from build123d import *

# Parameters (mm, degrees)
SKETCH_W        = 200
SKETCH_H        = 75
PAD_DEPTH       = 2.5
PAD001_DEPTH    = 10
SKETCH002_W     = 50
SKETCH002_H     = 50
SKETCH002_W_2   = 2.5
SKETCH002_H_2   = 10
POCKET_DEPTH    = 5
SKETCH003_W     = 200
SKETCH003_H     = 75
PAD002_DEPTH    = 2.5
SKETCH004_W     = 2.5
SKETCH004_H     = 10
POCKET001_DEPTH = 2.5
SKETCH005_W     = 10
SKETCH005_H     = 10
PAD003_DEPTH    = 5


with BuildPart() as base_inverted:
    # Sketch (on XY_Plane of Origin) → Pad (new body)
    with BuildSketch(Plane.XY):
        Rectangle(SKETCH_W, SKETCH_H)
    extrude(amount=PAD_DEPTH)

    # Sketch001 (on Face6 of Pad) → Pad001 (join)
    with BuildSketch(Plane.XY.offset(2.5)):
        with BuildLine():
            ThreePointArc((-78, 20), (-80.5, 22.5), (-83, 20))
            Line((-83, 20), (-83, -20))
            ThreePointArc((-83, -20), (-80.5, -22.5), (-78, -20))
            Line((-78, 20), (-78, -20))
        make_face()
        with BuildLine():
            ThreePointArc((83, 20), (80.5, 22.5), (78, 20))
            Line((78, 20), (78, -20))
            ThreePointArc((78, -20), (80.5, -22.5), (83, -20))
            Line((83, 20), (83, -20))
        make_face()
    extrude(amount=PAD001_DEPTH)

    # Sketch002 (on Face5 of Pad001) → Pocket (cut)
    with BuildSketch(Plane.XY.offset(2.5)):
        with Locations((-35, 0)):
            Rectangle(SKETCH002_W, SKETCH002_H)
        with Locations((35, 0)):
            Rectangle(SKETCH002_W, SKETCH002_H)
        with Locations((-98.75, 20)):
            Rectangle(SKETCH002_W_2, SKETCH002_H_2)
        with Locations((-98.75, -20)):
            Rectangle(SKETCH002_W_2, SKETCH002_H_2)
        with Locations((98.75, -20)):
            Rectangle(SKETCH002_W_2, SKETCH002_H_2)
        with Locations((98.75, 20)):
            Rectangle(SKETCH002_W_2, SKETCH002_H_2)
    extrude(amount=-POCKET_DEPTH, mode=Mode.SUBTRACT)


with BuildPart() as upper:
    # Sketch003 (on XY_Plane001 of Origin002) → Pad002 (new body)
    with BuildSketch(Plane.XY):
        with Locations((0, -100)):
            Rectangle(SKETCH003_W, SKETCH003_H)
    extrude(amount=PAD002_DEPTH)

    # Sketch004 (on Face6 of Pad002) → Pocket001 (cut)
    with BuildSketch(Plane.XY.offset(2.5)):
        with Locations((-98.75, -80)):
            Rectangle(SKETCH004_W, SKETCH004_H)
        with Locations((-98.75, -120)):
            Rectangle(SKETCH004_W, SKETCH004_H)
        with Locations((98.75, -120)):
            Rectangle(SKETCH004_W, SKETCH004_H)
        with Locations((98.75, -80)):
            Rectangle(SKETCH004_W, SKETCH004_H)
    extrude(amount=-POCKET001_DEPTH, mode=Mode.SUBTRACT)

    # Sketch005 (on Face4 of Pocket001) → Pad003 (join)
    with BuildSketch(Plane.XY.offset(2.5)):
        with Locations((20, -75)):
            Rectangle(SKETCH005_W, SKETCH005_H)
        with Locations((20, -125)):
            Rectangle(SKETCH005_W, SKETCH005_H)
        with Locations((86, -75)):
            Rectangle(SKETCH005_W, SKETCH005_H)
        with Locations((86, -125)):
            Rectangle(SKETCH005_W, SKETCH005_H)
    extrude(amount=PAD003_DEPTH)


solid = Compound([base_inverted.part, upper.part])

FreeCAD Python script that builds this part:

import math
import FreeCAD as App
import Part
import Sketcher

doc = App.newDocument("Part")
body = doc.addObject("PartDesign::Body", "Body")

sketch1 = body.newObject("Sketcher::SketchObject", "Sketch")
sketch1.AttachmentSupport = (doc.getObject("XY_Plane"), [""])
sketch1.MapMode = "FlatFace"
sketch1.addGeometry([
    Part.LineSegment(App.Vector(-100, 38, 0), App.Vector(-100, -38, 0)),
    Part.LineSegment(App.Vector(-100, -38, 0), App.Vector(100, -38, 0)),
    Part.LineSegment(App.Vector(100, -38, 0), App.Vector(100, 38, 0)),
    Part.LineSegment(App.Vector(100, 38, 0), App.Vector(-100, 38, 0)),
], False)
sketch1.addConstraint([
    Sketcher.Constraint("Coincident", 0, 2, 1, 1),
    Sketcher.Constraint("Coincident", 1, 2, 2, 1),
    Sketcher.Constraint("Coincident", 2, 2, 3, 1),
    Sketcher.Constraint("Coincident", 3, 2, 0, 1),
    Sketcher.Constraint("Vertical", 0),
    Sketcher.Constraint("Horizontal", 1),
    Sketcher.Constraint("Vertical", 2),
    Sketcher.Constraint("Horizontal", 3),
    Sketcher.Constraint("Symmetric", 0, 2, 2, 2, -1, 1),
    Sketcher.Constraint("DistanceX", 1, 1, 1, 2, 200.0),
    Sketcher.Constraint("DistanceY", 0, 2, 0, 1, 75.0),
])
pad1 = body.newObject("PartDesign::Pad", "Pad")
pad1.Profile = sketch1
pad1.Length = 2.5

sketch2 = body.newObject("Sketcher::SketchObject", "Sketch001")
sketch2.AttachmentSupport = (doc.getObject("XY_Plane"), [""])
sketch2.MapMode = "FlatFace"
sketch2.AttachmentOffset = App.Placement(App.Vector(0, 0, 2.5), App.Rotation())
sketch2.addGeometry([
    Part.ArcOfCircle(Part.Circle(App.Vector(-80.5, 20, 0), App.Vector(0, 0, 1), 2.5), math.radians(0), math.radians(180)),
    Part.LineSegment(App.Vector(-83, 20, 0), App.Vector(-83, -20, 0)),
    Part.ArcOfCircle(Part.Circle(App.Vector(-80.5, -20, 0), App.Vector(0, 0, 1), 2.5), math.radians(180), math.radians(360)),
    Part.LineSegment(App.Vector(-78, -20, 0), App.Vector(-78, 20, 0)),
    Part.ArcOfCircle(Part.Circle(App.Vector(80.5, 20, 0), App.Vector(0, 0, 1), 2.5), math.radians(0), math.radians(180)),
    Part.LineSegment(App.Vector(78, 20, 0), App.Vector(78, -20, 0)),
    Part.ArcOfCircle(Part.Circle(App.Vector(80.5, -20, 0), App.Vector(0, 0, 1), 2.5), math.radians(180), math.radians(360)),
    Part.LineSegment(App.Vector(83, -20, 0), App.Vector(83, 20, 0)),
], False)
sketch2.addConstraint([
    Sketcher.Constraint("Tangent", 0, 2, 1, 1),
    Sketcher.Constraint("Tangent", 1, 2, 2, 1),
    Sketcher.Constraint("Tangent", 2, 2, 3, 1),
    Sketcher.Constraint("Tangent", 3, 2, 0, 1),
    Sketcher.Constraint("Tangent", 4, 2, 5, 1),
    Sketcher.Constraint("Tangent", 5, 2, 6, 1),
    Sketcher.Constraint("Tangent", 6, 2, 7, 1),
    Sketcher.Constraint("Tangent", 7, 2, 4, 1),
    Sketcher.Constraint("Vertical", 1),
    Sketcher.Constraint("Vertical", 3),
    Sketcher.Constraint("Vertical", 5),
    Sketcher.Constraint("Vertical", 7),
    Sketcher.Constraint("Equal", 2, 4),
    Sketcher.Constraint("Symmetric", 2, 3, 4, 3, -1, 1),
    Sketcher.Constraint("Horizontal", 0, 3, 4, 3),
    Sketcher.Constraint("Horizontal", 2, 3, 6, 3),
    Sketcher.Constraint("Radius", 0, 2.5),
    Sketcher.Constraint("DistanceY", 1, 2, 1, 1, 40.0),
    Sketcher.Constraint("DistanceX", 0, 2, -1, 1, 83.0),
])
pad2 = body.newObject("PartDesign::Pad", "Pad001")
pad2.Profile = sketch2
pad2.Length = 10

sketch3 = body.newObject("Sketcher::SketchObject", "Sketch002")
sketch3.AttachmentSupport = (doc.getObject("XY_Plane"), [""])
sketch3.MapMode = "FlatFace"
sketch3.AttachmentOffset = App.Placement(App.Vector(0, 0, 2.5), App.Rotation())
sketch3.addGeometry([
    Part.LineSegment(App.Vector(-60, 25, 0), App.Vector(-60, -25, 0)),
    Part.LineSegment(App.Vector(-60, -25, 0), App.Vector(-10, -25, 0)),
    Part.LineSegment(App.Vector(-10, -25, 0), App.Vector(-10, 25, 0)),
    Part.LineSegment(App.Vector(-10, 25, 0), App.Vector(-60, 25, 0)),
    Part.LineSegment(App.Vector(10, 25, 0), App.Vector(10, -25, 0)),
    Part.LineSegment(App.Vector(10, -25, 0), App.Vector(60, -25, 0)),
    Part.LineSegment(App.Vector(60, -25, 0), App.Vector(60, 25, 0)),
    Part.LineSegment(App.Vector(60, 25, 0), App.Vector(10, 25, 0)),
    Part.LineSegment(App.Vector(-100, 25, 0), App.Vector(-100, 15, 0)),
    Part.LineSegment(App.Vector(-100, 15, 0), App.Vector(-97.5, 15, 0)),
    Part.LineSegment(App.Vector(-97.5, 15, 0), App.Vector(-97.5, 25, 0)),
    Part.LineSegment(App.Vector(-97.5, 25, 0), App.Vector(-100, 25, 0)),
    Part.LineSegment(App.Vector(-100, -15, 0), App.Vector(-100, -25, 0)),
    Part.LineSegment(App.Vector(-100, -25, 0), App.Vector(-97.5, -25, 0)),
    Part.LineSegment(App.Vector(-97.5, -25, 0), App.Vector(-97.5, -15, 0)),
    Part.LineSegment(App.Vector(-97.5, -15, 0), App.Vector(-100, -15, 0)),
    Part.LineSegment(App.Vector(97.5, -15, 0), App.Vector(97.5, -25, 0)),
    Part.LineSegment(App.Vector(97.5, -25, 0), App.Vector(100, -25, 0)),
    Part.LineSegment(App.Vector(100, -25, 0), App.Vector(100, -15, 0)),
    Part.LineSegment(App.Vector(100, -15, 0), App.Vector(97.5, -15, 0)),
    Part.LineSegment(App.Vector(97.5, 25, 0), App.Vector(97.5, 15, 0)),
    Part.LineSegment(App.Vector(97.5, 15, 0), App.Vector(100, 15, 0)),
    Part.LineSegment(App.Vector(100, 15, 0), App.Vector(100, 25, 0)),
    Part.LineSegment(App.Vector(100, 25, 0), App.Vector(97.5, 25, 0)),
], False)
sketch3.addConstraint([
    Sketcher.Constraint("Coincident", 0, 2, 1, 1),
    Sketcher.Constraint("Coincident", 1, 2, 2, 1),
    Sketcher.Constraint("Coincident", 2, 2, 3, 1),
    Sketcher.Constraint("Coincident", 3, 2, 0, 1),
    Sketcher.Constraint("Coincident", 4, 2, 5, 1),
    Sketcher.Constraint("Coincident", 5, 2, 6, 1),
    Sketcher.Constraint("Coincident", 6, 2, 7, 1),
    Sketcher.Constraint("Coincident", 7, 2, 4, 1),
    Sketcher.Constraint("Coincident", 8, 2, 9, 1),
    Sketcher.Constraint("Coincident", 9, 2, 10, 1),
    Sketcher.Constraint("Coincident", 10, 2, 11, 1),
    Sketcher.Constraint("Coincident", 11, 2, 8, 1),
    Sketcher.Constraint("Coincident", 12, 2, 13, 1),
    Sketcher.Constraint("Coincident", 13, 2, 14, 1),
    Sketcher.Constraint("Coincident", 14, 2, 15, 1),
    Sketcher.Constraint("Coincident", 15, 2, 12, 1),
    Sketcher.Constraint("Coincident", 16, 2, 17, 1),
    Sketcher.Constraint("Coincident", 17, 2, 18, 1),
    Sketcher.Constraint("Coincident", 18, 2, 19, 1),
    Sketcher.Constraint("Coincident", 19, 2, 16, 1),
    Sketcher.Constraint("Coincident", 20, 2, 21, 1),
    Sketcher.Constraint("Coincident", 21, 2, 22, 1),
    Sketcher.Constraint("Coincident", 22, 2, 23, 1),
    Sketcher.Constraint("Coincident", 23, 2, 20, 1),
    Sketcher.Constraint("Vertical", 0),
    Sketcher.Constraint("Horizontal", 1),
    Sketcher.Constraint("Vertical", 2),
    Sketcher.Constraint("Horizontal", 3),
    Sketcher.Constraint("Vertical", 4),
    Sketcher.Constraint("Horizontal", 5),
    Sketcher.Constraint("Vertical", 6),
    Sketcher.Constraint("Horizontal", 7),
    Sketcher.Constraint("Vertical", 8),
    Sketcher.Constraint("Horizontal", 9),
    Sketcher.Constraint("Vertical", 10),
    Sketcher.Constraint("Horizontal", 11),
    Sketcher.Constraint("Vertical", 12),
    Sketcher.Constraint("Horizontal", 13),
    Sketcher.Constraint("Vertical", 14),
    Sketcher.Constraint("Horizontal", 15),
    Sketcher.Constraint("Vertical", 16),
    Sketcher.Constraint("Horizontal", 17),
    Sketcher.Constraint("Vertical", 18),
    Sketcher.Constraint("Horizontal", 19),
    Sketcher.Constraint("Vertical", 20),
    Sketcher.Constraint("Horizontal", 21),
    Sketcher.Constraint("Vertical", 22),
    Sketcher.Constraint("Horizontal", 23),
    Sketcher.Constraint("Symmetric", 2, 2, 4, 2, -1, 1),
    Sketcher.Constraint("Symmetric", 0, 2, 6, 2, -1, 1),
    Sketcher.Constraint("Symmetric", 10, 2, 16, 2, -1, 1),
    Sketcher.Constraint("Symmetric", 8, 2, 18, 2, -1, 1),
    Sketcher.Constraint("Symmetric", 14, 2, 20, 2, -1, 1),
    Sketcher.Constraint("Symmetric", 12, 2, 22, 2, -1, 1),
    Sketcher.Constraint("Symmetric", 13, 2, 16, 2, -2),
    Sketcher.Constraint("Symmetric", 15, 2, 18, 2, -2),
    Sketcher.Constraint("Horizontal", 1, 2, 4, 2),
    Sketcher.Constraint("Horizontal", 7, 2, 10, 2),
    Sketcher.Constraint("Equal", 7, 0),
    Sketcher.Constraint("DistanceX", 1, 1, 1, 2, 50.0),
    Sketcher.Constraint("DistanceY", 8, 2, 8, 1, 10.0),
    Sketcher.Constraint("DistanceX", 9, 1, 9, 2, 2.5),
    Sketcher.Constraint("DistanceX", 0, 2, -1, 1, 60.0),
    Sketcher.Constraint("DistanceX", 8, 2, -1, 1, 100.0),
])
pocket1 = body.newObject("PartDesign::Pocket", "Pocket")
pocket1.Profile = sketch3
pocket1.Length = 5
body2 = doc.addObject("PartDesign::Body", "Body001")

sketch4 = body2.newObject("Sketcher::SketchObject", "Sketch003")
sketch4.AttachmentSupport = (doc.getObject("XY_Plane001"), [""])
sketch4.MapMode = "FlatFace"
sketch4.addGeometry([
    Part.LineSegment(App.Vector(-100, -62, 0), App.Vector(-100, -138, 0)),
    Part.LineSegment(App.Vector(-100, -138, 0), App.Vector(100, -138, 0)),
    Part.LineSegment(App.Vector(100, -138, 0), App.Vector(100, -62, 0)),
    Part.LineSegment(App.Vector(100, -62, 0), App.Vector(-100, -62, 0)),
], False)
sketch4.addConstraint([
    Sketcher.Constraint("Coincident", 0, 2, 1, 1),
    Sketcher.Constraint("Coincident", 1, 2, 2, 1),
    Sketcher.Constraint("Coincident", 2, 2, 3, 1),
    Sketcher.Constraint("Coincident", 3, 2, 0, 1),
    Sketcher.Constraint("Vertical", 0),
    Sketcher.Constraint("Horizontal", 1),
    Sketcher.Constraint("Vertical", 2),
    Sketcher.Constraint("Horizontal", 3),
    Sketcher.Constraint("DistanceX", 1, 1, 1, 2, 200.0),
    Sketcher.Constraint("DistanceY", 0, 2, 0, 1, 75.0),
    Sketcher.Constraint("DistanceX", 0, 2, -1, 1, 100.0),
    Sketcher.Constraint("DistanceY", 0, 2, -1, 1, 137.5),
])
pad3 = body2.newObject("PartDesign::Pad", "Pad002")
pad3.Profile = sketch4
pad3.Length = 2.5

sketch5 = body2.newObject("Sketcher::SketchObject", "Sketch004")
sketch5.AttachmentSupport = (doc.getObject("XY_Plane001"), [""])
sketch5.MapMode = "FlatFace"
sketch5.AttachmentOffset = App.Placement(App.Vector(0, 0, 2.5), App.Rotation())
sketch5.addGeometry([
    Part.LineSegment(App.Vector(-100, -75, 0), App.Vector(-100, -85, 0)),
    Part.LineSegment(App.Vector(-100, -85, 0), App.Vector(-97.5, -85, 0)),
    Part.LineSegment(App.Vector(-97.5, -85, 0), App.Vector(-97.5, -75, 0)),
    Part.LineSegment(App.Vector(-97.5, -75, 0), App.Vector(-100, -75, 0)),
    Part.LineSegment(App.Vector(-100, -115, 0), App.Vector(-100, -125, 0)),
    Part.LineSegment(App.Vector(-100, -125, 0), App.Vector(-97.5, -125, 0)),
    Part.LineSegment(App.Vector(-97.5, -125, 0), App.Vector(-97.5, -115, 0)),
    Part.LineSegment(App.Vector(-97.5, -115, 0), App.Vector(-100, -115, 0)),
    Part.LineSegment(App.Vector(97.5, -115, 0), App.Vector(97.5, -125, 0)),
    Part.LineSegment(App.Vector(97.5, -125, 0), App.Vector(100, -125, 0)),
    Part.LineSegment(App.Vector(100, -125, 0), App.Vector(100, -115, 0)),
    Part.LineSegment(App.Vector(100, -115, 0), App.Vector(97.5, -115, 0)),
    Part.LineSegment(App.Vector(97.5, -75, 0), App.Vector(97.5, -85, 0)),
    Part.LineSegment(App.Vector(97.5, -85, 0), App.Vector(100, -85, 0)),
    Part.LineSegment(App.Vector(100, -85, 0), App.Vector(100, -75, 0)),
    Part.LineSegment(App.Vector(100, -75, 0), App.Vector(97.5, -75, 0)),
], False)
sketch5.addConstraint([
    Sketcher.Constraint("Coincident", 0, 2, 1, 1),
    Sketcher.Constraint("Coincident", 1, 2, 2, 1),
    Sketcher.Constraint("Coincident", 2, 2, 3, 1),
    Sketcher.Constraint("Coincident", 3, 2, 0, 1),
    Sketcher.Constraint("Coincident", 4, 2, 5, 1),
    Sketcher.Constraint("Coincident", 5, 2, 6, 1),
    Sketcher.Constraint("Coincident", 6, 2, 7, 1),
    Sketcher.Constraint("Coincident", 7, 2, 4, 1),
    Sketcher.Constraint("Coincident", 8, 2, 9, 1),
    Sketcher.Constraint("Coincident", 9, 2, 10, 1),
    Sketcher.Constraint("Coincident", 10, 2, 11, 1),
    Sketcher.Constraint("Coincident", 11, 2, 8, 1),
    Sketcher.Constraint("Coincident", 12, 2, 13, 1),
    Sketcher.Constraint("Coincident", 13, 2, 14, 1),
    Sketcher.Constraint("Coincident", 14, 2, 15, 1),
    Sketcher.Constraint("Coincident", 15, 2, 12, 1),
    Sketcher.Constraint("Vertical", 0),
    Sketcher.Constraint("Horizontal", 1),
    Sketcher.Constraint("Vertical", 2),
    Sketcher.Constraint("Horizontal", 3),
    Sketcher.Constraint("Vertical", 4),
    Sketcher.Constraint("Horizontal", 5),
    Sketcher.Constraint("Vertical", 6),
    Sketcher.Constraint("Horizontal", 7),
    Sketcher.Constraint("Vertical", 8),
    Sketcher.Constraint("Horizontal", 9),
    Sketcher.Constraint("Vertical", 10),
    Sketcher.Constraint("Horizontal", 11),
    Sketcher.Constraint("Vertical", 12),
    Sketcher.Constraint("Horizontal", 13),
    Sketcher.Constraint("Vertical", 14),
    Sketcher.Constraint("Horizontal", 15),
    Sketcher.Constraint("Symmetric", 5, 2, 8, 2, -2),
    Sketcher.Constraint("Symmetric", 7, 2, 10, 2, -2),
    Sketcher.Constraint("Symmetric", 1, 2, 12, 2, -2),
    Sketcher.Constraint("Symmetric", 3, 2, 14, 2, -2),
    Sketcher.Constraint("Vertical", 3, 2, 4, 2),
    Sketcher.Constraint("Vertical", 2, 2, 5, 2),
    Sketcher.Constraint("Equal", 2, 4),
    Sketcher.Constraint("DistanceY", 0, 2, 0, 1, 10.0),
    Sketcher.Constraint("DistanceX", 1, 1, 1, 2, 2.5),
    Sketcher.Constraint("DistanceX", 0, 2, -1, 1, 100.0),
    Sketcher.Constraint("DistanceY", 0, 2, -1, 1, 85.0),
    Sketcher.Constraint("DistanceY", 4, 2, -1, 1, 125.0),
])
pocket2 = body2.newObject("PartDesign::Pocket", "Pocket001")
pocket2.Profile = sketch5
pocket2.Length = 2.5

sketch6 = body2.newObject("Sketcher::SketchObject", "Sketch005")
sketch6.AttachmentSupport = (doc.getObject("XY_Plane001"), [""])
sketch6.MapMode = "FlatFace"
sketch6.AttachmentOffset = App.Placement(App.Vector(0, 0, 2.5), App.Rotation())
sketch6.addGeometry([
    Part.LineSegment(App.Vector(15, -70, 0), App.Vector(15, -80, 0)),
    Part.LineSegment(App.Vector(15, -80, 0), App.Vector(25, -80, 0)),
    Part.LineSegment(App.Vector(25, -80, 0), App.Vector(25, -70, 0)),
    Part.LineSegment(App.Vector(25, -70, 0), App.Vector(15, -70, 0)),
    Part.LineSegment(App.Vector(15, -120, 0), App.Vector(15, -130, 0)),
    Part.LineSegment(App.Vector(15, -130, 0), App.Vector(25, -130, 0)),
    Part.LineSegment(App.Vector(25, -130, 0), App.Vector(25, -120, 0)),
    Part.LineSegment(App.Vector(25, -120, 0), App.Vector(15, -120, 0)),
    Part.LineSegment(App.Vector(81, -70, 0), App.Vector(81, -80, 0)),
    Part.LineSegment(App.Vector(81, -80, 0), App.Vector(91, -80, 0)),
    Part.LineSegment(App.Vector(91, -80, 0), App.Vector(91, -70, 0)),
    Part.LineSegment(App.Vector(91, -70, 0), App.Vector(81, -70, 0)),
    Part.LineSegment(App.Vector(81, -120, 0), App.Vector(81, -130, 0)),
    Part.LineSegment(App.Vector(81, -130, 0), App.Vector(91, -130, 0)),
    Part.LineSegment(App.Vector(91, -130, 0), App.Vector(91, -120, 0)),
    Part.LineSegment(App.Vector(91, -120, 0), App.Vector(81, -120, 0)),
], False)
sketch6.addConstraint([
    Sketcher.Constraint("Coincident", 0, 2, 1, 1),
    Sketcher.Constraint("Coincident", 1, 2, 2, 1),
    Sketcher.Constraint("Coincident", 2, 2, 3, 1),
    Sketcher.Constraint("Coincident", 3, 2, 0, 1),
    Sketcher.Constraint("Coincident", 4, 2, 5, 1),
    Sketcher.Constraint("Coincident", 5, 2, 6, 1),
    Sketcher.Constraint("Coincident", 6, 2, 7, 1),
    Sketcher.Constraint("Coincident", 7, 2, 4, 1),
    Sketcher.Constraint("Coincident", 8, 2, 9, 1),
    Sketcher.Constraint("Coincident", 9, 2, 10, 1),
    Sketcher.Constraint("Coincident", 10, 2, 11, 1),
    Sketcher.Constraint("Coincident", 11, 2, 8, 1),
    Sketcher.Constraint("Coincident", 12, 2, 13, 1),
    Sketcher.Constraint("Coincident", 13, 2, 14, 1),
    Sketcher.Constraint("Coincident", 14, 2, 15, 1),
    Sketcher.Constraint("Coincident", 15, 2, 12, 1),
    Sketcher.Constraint("Vertical", 0),
    Sketcher.Constraint("Horizontal", 1),
    Sketcher.Constraint("Vertical", 2),
    Sketcher.Constraint("Horizontal", 3),
    Sketcher.Constraint("Vertical", 4),
    Sketcher.Constraint("Horizontal", 5),
    Sketcher.Constraint("Vertical", 6),
    Sketcher.Constraint("Horizontal", 7),
    Sketcher.Constraint("Vertical", 8),
    Sketcher.Constraint("Horizontal", 9),
    Sketcher.Constraint("Vertical", 10),
    Sketcher.Constraint("Horizontal", 11),
    Sketcher.Constraint("Vertical", 12),
    Sketcher.Constraint("Horizontal", 13),
    Sketcher.Constraint("Vertical", 14),
    Sketcher.Constraint("Horizontal", 15),
    Sketcher.Constraint("Horizontal", 1, 2, 8, 2),
    Sketcher.Constraint("Horizontal", 3, 2, 10, 2),
    Sketcher.Constraint("Horizontal", 5, 2, 12, 2),
    Sketcher.Constraint("Horizontal", 7, 2, 14, 2),
    Sketcher.Constraint("Vertical", 3, 2, 4, 2),
    Sketcher.Constraint("Vertical", 2, 2, 5, 2),
    Sketcher.Constraint("Vertical", 11, 2, 12, 2),
    Sketcher.Constraint("Vertical", 10, 2, 13, 2),
    Sketcher.Constraint("Equal", 7, 9),
    Sketcher.Constraint("Equal", 15, 0),
    Sketcher.Constraint("Equal", 2, 4),
    Sketcher.Constraint("DistanceX", 1, 1, 1, 2, 10.0),
    Sketcher.Constraint("DistanceX", -1, 1, 0, 2, 15.0),
    Sketcher.Constraint("DistanceY", 0, 2, -1, 1, 80.0),
    Sketcher.Constraint("DistanceY", 4, 2, -1, 1, 130.0),
    Sketcher.Constraint("DistanceX", -1, 1, 8, 2, 81.0),
])
pad4 = body2.newObject("PartDesign::Pad", "Pad003")
pad4.Profile = sketch6
pad4.Length = 5

doc.recompute()
